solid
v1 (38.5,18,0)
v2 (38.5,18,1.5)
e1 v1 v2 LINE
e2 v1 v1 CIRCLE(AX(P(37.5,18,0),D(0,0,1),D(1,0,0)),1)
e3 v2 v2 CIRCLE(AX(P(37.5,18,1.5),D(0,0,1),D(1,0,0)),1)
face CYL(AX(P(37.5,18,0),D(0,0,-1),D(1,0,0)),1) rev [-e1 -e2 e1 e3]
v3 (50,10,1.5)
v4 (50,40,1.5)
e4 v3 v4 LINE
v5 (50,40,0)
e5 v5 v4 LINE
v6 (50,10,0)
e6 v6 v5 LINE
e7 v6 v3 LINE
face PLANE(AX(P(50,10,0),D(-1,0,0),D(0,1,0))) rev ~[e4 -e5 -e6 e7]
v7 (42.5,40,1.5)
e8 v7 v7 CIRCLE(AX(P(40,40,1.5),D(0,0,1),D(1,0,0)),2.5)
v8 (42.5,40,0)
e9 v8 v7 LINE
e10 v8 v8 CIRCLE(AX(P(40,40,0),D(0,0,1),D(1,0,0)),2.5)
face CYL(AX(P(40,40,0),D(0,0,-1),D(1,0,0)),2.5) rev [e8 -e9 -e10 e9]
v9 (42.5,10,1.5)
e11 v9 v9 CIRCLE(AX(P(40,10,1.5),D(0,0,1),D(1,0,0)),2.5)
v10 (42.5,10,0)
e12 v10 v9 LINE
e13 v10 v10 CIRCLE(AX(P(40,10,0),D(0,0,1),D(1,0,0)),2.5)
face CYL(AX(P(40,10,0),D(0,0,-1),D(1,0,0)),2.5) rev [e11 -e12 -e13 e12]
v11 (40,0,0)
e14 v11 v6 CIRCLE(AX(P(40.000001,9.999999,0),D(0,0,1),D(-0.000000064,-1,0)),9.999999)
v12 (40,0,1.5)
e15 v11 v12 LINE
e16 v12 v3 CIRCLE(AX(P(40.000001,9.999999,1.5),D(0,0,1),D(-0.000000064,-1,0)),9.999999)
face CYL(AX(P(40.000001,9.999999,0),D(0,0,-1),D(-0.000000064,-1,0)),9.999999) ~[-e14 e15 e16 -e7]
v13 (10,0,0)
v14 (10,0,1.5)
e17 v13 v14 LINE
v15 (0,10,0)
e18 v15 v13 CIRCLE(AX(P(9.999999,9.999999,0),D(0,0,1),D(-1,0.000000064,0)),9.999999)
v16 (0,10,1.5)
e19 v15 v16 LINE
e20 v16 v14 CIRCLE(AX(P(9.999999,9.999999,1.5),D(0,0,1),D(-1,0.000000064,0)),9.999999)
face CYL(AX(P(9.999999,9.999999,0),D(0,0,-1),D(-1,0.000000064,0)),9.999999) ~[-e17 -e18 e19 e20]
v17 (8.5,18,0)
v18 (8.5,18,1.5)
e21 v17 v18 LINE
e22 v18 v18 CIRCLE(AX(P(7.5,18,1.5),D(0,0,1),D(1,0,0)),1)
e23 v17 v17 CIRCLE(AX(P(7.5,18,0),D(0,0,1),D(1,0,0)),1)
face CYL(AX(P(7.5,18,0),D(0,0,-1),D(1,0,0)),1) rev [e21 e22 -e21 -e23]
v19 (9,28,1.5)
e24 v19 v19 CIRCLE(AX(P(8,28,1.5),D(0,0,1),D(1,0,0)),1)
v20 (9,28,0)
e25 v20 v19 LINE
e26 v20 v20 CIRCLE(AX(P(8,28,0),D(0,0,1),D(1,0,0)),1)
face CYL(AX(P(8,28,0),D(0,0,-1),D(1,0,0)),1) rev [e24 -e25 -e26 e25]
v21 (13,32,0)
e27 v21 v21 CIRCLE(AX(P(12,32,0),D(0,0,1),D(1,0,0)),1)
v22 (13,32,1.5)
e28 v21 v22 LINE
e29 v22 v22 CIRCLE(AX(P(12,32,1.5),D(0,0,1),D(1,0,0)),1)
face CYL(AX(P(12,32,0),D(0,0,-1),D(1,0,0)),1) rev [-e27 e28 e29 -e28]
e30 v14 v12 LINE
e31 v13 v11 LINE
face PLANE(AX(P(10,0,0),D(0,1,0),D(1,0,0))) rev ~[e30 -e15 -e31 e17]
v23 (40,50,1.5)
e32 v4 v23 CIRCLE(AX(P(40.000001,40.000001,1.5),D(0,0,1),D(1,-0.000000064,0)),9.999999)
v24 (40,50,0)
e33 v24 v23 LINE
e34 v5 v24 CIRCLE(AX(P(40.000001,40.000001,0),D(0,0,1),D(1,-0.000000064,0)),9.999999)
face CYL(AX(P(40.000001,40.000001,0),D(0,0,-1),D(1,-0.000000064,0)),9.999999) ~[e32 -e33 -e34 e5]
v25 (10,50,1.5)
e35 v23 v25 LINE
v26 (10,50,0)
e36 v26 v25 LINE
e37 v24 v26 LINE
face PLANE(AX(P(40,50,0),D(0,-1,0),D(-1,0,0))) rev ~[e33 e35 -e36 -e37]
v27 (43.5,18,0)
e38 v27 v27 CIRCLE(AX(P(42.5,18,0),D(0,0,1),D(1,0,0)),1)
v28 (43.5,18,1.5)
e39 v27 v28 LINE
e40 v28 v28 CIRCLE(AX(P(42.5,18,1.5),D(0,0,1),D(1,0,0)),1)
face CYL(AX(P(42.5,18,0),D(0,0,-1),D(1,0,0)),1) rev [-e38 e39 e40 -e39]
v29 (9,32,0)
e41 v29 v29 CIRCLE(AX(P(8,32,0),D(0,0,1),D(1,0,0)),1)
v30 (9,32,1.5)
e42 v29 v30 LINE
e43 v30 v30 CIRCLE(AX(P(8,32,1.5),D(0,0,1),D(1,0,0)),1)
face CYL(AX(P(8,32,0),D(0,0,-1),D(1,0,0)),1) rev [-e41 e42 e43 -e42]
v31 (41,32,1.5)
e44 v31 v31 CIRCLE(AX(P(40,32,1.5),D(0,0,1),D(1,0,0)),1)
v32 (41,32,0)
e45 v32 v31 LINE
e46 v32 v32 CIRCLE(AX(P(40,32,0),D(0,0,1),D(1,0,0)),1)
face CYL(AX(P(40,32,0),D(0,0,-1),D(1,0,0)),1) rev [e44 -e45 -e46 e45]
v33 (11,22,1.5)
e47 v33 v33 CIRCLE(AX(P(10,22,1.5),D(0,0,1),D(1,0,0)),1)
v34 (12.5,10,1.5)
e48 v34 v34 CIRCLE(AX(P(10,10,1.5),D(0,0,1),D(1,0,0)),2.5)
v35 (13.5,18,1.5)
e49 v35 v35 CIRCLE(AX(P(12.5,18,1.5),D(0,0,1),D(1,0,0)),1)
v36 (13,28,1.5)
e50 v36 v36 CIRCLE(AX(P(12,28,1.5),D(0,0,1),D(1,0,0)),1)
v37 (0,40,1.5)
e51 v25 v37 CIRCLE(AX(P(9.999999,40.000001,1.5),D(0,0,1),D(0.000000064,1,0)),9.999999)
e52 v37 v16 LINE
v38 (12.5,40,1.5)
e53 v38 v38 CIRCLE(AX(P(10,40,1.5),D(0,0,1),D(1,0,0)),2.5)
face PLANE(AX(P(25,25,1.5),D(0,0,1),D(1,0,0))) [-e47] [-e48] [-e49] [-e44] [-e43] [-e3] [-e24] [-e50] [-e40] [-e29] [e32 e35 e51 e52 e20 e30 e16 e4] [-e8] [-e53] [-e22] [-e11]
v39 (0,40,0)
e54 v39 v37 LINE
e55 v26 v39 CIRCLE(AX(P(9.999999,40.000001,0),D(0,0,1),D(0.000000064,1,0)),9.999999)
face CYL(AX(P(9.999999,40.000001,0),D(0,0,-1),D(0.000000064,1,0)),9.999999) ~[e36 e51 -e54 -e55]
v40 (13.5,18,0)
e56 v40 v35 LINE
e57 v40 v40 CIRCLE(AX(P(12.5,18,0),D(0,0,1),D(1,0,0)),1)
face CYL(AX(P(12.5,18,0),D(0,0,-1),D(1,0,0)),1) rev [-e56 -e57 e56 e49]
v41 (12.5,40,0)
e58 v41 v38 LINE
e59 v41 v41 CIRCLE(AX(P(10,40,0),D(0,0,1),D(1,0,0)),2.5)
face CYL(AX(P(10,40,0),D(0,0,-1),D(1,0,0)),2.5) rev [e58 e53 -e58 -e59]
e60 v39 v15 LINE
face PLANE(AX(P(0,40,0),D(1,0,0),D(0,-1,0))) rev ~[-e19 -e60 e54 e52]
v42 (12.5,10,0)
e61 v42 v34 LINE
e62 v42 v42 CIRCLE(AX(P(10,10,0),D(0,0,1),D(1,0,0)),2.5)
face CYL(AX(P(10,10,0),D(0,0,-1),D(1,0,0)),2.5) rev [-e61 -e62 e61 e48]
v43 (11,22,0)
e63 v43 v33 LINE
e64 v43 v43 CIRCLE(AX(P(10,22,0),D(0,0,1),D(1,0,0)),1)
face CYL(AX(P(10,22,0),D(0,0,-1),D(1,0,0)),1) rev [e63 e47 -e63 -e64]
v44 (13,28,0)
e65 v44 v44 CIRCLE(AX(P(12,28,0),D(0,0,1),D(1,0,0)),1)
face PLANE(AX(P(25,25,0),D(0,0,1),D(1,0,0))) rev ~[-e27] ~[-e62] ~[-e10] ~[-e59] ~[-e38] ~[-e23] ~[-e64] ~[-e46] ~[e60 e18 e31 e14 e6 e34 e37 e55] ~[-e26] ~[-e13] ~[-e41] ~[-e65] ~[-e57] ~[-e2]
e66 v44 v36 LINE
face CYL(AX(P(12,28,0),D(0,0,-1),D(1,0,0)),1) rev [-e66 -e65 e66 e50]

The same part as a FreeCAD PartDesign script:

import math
import FreeCAD as App
import Part
import Sketcher
from FreeCAD import Vector
Q = App.Units.Quantity

doc = App.newDocument("Part")
body = doc.addObject("PartDesign::Body", "Body")

# Sketch on XY plane
sketch1 = body.newObject("Sketcher::SketchObject", "Sketch")
sketch1.AttachmentSupport = (doc.getObject("XY_Plane"), [""])
sketch1.MapMode = "FlatFace"
sketch1.addGeometry([
    Part.ArcOfCircle(Part.Circle(Vector(10, 10, 0), Vector(0, 0, 1), 10), math.radians(180), math.radians(270)),  # 0
    Part.LineSegment(Vector(10, 0, 0), Vector(40, 0, 0)),  # 1
    Part.ArcOfCircle(Part.Circle(Vector(40, 10, 0), Vector(0, 0, 1), 10), math.radians(-90), math.radians(0)),  # 2
    Part.LineSegment(Vector(50, 10, 0), Vector(50, 40, 0)),  # 3
    Part.ArcOfCircle(Part.Circle(Vector(40, 40, 0), Vector(0, 0, 1), 10), math.radians(0), math.radians(90)),  # 4
    Part.LineSegment(Vector(40, 50, 0), Vector(10, 50, 0)),  # 5
    Part.ArcOfCircle(Part.Circle(Vector(10, 40, 0), Vector(0, 0, 1), 10), math.radians(90), math.radians(180)),  # 6
    Part.LineSegment(Vector(0, 40, 0), Vector(0, 10, 0)),  # 7
    Part.Circle(Vector(10, 10, 0), Vector(0, 0, 1), 2.5),  # 8
    Part.Circle(Vector(7.5, 18, 0), Vector(0, 0, 1), 1),  # 9
    Part.Circle(Vector(12.5, 18, 0), Vector(0, 0, 1), 1),  # 10
    Part.Circle(Vector(10, 22, 0), Vector(0, 0, 1), 1),  # 11
    Part.Circle(Vector(40, 10, 0), Vector(0, 0, 1), 2.5),  # 12
    Part.Circle(Vector(37.5, 18, 0), Vector(0, 0, 1), 1),  # 13
    Part.Circle(Vector(42.5, 18, 0), Vector(0, 0, 1), 1),  # 14
    Part.Circle(Vector(8, 28, 0), Vector(0, 0, 1), 1),  # 15
    Part.Circle(Vector(12, 28, 0), Vector(0, 0, 1), 1),  # 16
    Part.Circle(Vector(8, 32, 0), Vector(0, 0, 1), 1),  # 17
    Part.Circle(Vector(12, 32, 0), Vector(0, 0, 1), 1),  # 18
    Part.Circle(Vector(10, 40, 0), Vector(0, 0, 1), 2.5),  # 19
    Part.Circle(Vector(40, 32, 0), Vector(0, 0, 1), 1),  # 20
    Part.Circle(Vector(40, 40, 0), Vector(0, 0, 1), 2.5),  # 21
], False)
sketch1.addConstraint([
    Sketcher.Constraint("Tangent", 0, 2, 1, 1),
    Sketcher.Constraint("Tangent", 1, 2, 2, 1),
    Sketcher.Constraint("Tangent", 2, 2, 3, 1),
    Sketcher.Constraint("Tangent", 3, 2, 4, 1),
    Sketcher.Constraint("Tangent", 4, 2, 5, 1),
    Sketcher.Constraint("Tangent", 5, 2, 6, 1),
    Sketcher.Constraint("Tangent", 6, 2, 7, 1),
    Sketcher.Constraint("Tangent", 7, 2, 0, 1),
    Sketcher.Constraint("Horizontal", 1),
    Sketcher.Constraint("Vertical", 3),
    Sketcher.Constraint("Horizontal", 5),
    Sketcher.Constraint("Vertical", 7),
    Sketcher.Constraint("Coincident", 8, 3, 0, 3),
    Sketcher.Constraint("Coincident", 12, 3, 2, 3),
    Sketcher.Constraint("Coincident", 19, 3, 6, 3),
    Sketcher.Constraint("Coincident", 21, 3, 4, 3),
    Sketcher.Constraint("Equal", 0, 2),
    Sketcher.Constraint("Equal", 2, 4),
    Sketcher.Constraint("Equal", 4, 6),
    Sketcher.Constraint("Equal", 9, 10),
    Sketcher.Constraint("Equal", 10, 11),
    Sketcher.Constraint("Equal", 8, 12),
    Sketcher.Constraint("Equal", 11, 13),
    Sketcher.Constraint("Equal", 13, 14),
    Sketcher.Constraint("Equal", 14, 15),
    Sketcher.Constraint("Equal", 15, 16),
    Sketcher.Constraint("Equal", 16, 17),
    Sketcher.Constraint("Equal", 17, 18),
    Sketcher.Constraint("Equal", 12, 19),
    Sketcher.Constraint("Equal", 18, 20),
    Sketcher.Constraint("Equal", 19, 21),
    Sketcher.Constraint("PointOnObject", 0, 2, -1),
    Sketcher.Constraint("PointOnObject", 6, 2, -2),
    Sketcher.Constraint("Horizontal", 9, 3, 10, 3),
    Sketcher.Constraint("Horizontal", 10, 3, 13, 3),
    Sketcher.Constraint("Horizontal", 13, 3, 14, 3),
    Sketcher.Constraint("Horizontal", 15, 3, 16, 3),
    Sketcher.Constraint("Horizontal", 17, 3, 18, 3),
    Sketcher.Constraint("Horizontal", 18, 3, 20, 3),
    Sketcher.Constraint("Vertical", 8, 3, 11, 3),
    Sketcher.Constraint("Vertical", 15, 3, 17, 3),
    Sketcher.Constraint("Vertical", 16, 3, 18, 3),
    Sketcher.Constraint("Vertical", 12, 3, 20, 3),
    Sketcher.Constraint("Equal", 5, 3),
    Sketcher.Constraint("Diameter", 8, Q("5 mm")),
    Sketcher.Constraint("Diameter", 9, Q("2 mm")),
    Sketcher.Constraint("Radius", 0, Q("9.999999 mm")),
    Sketcher.Constraint("DistanceX", 1, 1, 1, 2, Q("30 mm")),
    Sketcher.Constraint("DistanceY", -1, 1, 9, 3, Q("18 mm")),
    Sketcher.Constraint("DistanceY", -1, 1, 11, 3, Q("22 mm")),
    Sketcher.Constraint("DistanceX", -1, 1, 15, 3, Q("8 mm")),
    Sketcher.Constraint("DistanceY", -1, 1, 15, 3, Q("28 mm")),
    Sketcher.Constraint("DistanceX", -1, 1, 16, 3, Q("12 mm")),
    Sketcher.Constraint("DistanceY", -1, 1, 17, 3, Q("32 mm")),
    Sketcher.Constraint("DistanceX", 9, 3, 10, 3, Q("5 mm")),
    Sketcher.Constraint("DistanceX", 10, 3, 13, 3, Q("25 mm")),
    Sketcher.Constraint("DistanceX", 13, 3, 14, 3, Q("5 mm")),
    Sketcher.Constraint("DistanceX", -1, 1, 9, 3, Q("7.5 mm")),
])
pad1 = body.newObject("PartDesign::Pad", "Pad")
pad1.Profile = sketch1
pad1.Length = 1.5

doc.recompute()
